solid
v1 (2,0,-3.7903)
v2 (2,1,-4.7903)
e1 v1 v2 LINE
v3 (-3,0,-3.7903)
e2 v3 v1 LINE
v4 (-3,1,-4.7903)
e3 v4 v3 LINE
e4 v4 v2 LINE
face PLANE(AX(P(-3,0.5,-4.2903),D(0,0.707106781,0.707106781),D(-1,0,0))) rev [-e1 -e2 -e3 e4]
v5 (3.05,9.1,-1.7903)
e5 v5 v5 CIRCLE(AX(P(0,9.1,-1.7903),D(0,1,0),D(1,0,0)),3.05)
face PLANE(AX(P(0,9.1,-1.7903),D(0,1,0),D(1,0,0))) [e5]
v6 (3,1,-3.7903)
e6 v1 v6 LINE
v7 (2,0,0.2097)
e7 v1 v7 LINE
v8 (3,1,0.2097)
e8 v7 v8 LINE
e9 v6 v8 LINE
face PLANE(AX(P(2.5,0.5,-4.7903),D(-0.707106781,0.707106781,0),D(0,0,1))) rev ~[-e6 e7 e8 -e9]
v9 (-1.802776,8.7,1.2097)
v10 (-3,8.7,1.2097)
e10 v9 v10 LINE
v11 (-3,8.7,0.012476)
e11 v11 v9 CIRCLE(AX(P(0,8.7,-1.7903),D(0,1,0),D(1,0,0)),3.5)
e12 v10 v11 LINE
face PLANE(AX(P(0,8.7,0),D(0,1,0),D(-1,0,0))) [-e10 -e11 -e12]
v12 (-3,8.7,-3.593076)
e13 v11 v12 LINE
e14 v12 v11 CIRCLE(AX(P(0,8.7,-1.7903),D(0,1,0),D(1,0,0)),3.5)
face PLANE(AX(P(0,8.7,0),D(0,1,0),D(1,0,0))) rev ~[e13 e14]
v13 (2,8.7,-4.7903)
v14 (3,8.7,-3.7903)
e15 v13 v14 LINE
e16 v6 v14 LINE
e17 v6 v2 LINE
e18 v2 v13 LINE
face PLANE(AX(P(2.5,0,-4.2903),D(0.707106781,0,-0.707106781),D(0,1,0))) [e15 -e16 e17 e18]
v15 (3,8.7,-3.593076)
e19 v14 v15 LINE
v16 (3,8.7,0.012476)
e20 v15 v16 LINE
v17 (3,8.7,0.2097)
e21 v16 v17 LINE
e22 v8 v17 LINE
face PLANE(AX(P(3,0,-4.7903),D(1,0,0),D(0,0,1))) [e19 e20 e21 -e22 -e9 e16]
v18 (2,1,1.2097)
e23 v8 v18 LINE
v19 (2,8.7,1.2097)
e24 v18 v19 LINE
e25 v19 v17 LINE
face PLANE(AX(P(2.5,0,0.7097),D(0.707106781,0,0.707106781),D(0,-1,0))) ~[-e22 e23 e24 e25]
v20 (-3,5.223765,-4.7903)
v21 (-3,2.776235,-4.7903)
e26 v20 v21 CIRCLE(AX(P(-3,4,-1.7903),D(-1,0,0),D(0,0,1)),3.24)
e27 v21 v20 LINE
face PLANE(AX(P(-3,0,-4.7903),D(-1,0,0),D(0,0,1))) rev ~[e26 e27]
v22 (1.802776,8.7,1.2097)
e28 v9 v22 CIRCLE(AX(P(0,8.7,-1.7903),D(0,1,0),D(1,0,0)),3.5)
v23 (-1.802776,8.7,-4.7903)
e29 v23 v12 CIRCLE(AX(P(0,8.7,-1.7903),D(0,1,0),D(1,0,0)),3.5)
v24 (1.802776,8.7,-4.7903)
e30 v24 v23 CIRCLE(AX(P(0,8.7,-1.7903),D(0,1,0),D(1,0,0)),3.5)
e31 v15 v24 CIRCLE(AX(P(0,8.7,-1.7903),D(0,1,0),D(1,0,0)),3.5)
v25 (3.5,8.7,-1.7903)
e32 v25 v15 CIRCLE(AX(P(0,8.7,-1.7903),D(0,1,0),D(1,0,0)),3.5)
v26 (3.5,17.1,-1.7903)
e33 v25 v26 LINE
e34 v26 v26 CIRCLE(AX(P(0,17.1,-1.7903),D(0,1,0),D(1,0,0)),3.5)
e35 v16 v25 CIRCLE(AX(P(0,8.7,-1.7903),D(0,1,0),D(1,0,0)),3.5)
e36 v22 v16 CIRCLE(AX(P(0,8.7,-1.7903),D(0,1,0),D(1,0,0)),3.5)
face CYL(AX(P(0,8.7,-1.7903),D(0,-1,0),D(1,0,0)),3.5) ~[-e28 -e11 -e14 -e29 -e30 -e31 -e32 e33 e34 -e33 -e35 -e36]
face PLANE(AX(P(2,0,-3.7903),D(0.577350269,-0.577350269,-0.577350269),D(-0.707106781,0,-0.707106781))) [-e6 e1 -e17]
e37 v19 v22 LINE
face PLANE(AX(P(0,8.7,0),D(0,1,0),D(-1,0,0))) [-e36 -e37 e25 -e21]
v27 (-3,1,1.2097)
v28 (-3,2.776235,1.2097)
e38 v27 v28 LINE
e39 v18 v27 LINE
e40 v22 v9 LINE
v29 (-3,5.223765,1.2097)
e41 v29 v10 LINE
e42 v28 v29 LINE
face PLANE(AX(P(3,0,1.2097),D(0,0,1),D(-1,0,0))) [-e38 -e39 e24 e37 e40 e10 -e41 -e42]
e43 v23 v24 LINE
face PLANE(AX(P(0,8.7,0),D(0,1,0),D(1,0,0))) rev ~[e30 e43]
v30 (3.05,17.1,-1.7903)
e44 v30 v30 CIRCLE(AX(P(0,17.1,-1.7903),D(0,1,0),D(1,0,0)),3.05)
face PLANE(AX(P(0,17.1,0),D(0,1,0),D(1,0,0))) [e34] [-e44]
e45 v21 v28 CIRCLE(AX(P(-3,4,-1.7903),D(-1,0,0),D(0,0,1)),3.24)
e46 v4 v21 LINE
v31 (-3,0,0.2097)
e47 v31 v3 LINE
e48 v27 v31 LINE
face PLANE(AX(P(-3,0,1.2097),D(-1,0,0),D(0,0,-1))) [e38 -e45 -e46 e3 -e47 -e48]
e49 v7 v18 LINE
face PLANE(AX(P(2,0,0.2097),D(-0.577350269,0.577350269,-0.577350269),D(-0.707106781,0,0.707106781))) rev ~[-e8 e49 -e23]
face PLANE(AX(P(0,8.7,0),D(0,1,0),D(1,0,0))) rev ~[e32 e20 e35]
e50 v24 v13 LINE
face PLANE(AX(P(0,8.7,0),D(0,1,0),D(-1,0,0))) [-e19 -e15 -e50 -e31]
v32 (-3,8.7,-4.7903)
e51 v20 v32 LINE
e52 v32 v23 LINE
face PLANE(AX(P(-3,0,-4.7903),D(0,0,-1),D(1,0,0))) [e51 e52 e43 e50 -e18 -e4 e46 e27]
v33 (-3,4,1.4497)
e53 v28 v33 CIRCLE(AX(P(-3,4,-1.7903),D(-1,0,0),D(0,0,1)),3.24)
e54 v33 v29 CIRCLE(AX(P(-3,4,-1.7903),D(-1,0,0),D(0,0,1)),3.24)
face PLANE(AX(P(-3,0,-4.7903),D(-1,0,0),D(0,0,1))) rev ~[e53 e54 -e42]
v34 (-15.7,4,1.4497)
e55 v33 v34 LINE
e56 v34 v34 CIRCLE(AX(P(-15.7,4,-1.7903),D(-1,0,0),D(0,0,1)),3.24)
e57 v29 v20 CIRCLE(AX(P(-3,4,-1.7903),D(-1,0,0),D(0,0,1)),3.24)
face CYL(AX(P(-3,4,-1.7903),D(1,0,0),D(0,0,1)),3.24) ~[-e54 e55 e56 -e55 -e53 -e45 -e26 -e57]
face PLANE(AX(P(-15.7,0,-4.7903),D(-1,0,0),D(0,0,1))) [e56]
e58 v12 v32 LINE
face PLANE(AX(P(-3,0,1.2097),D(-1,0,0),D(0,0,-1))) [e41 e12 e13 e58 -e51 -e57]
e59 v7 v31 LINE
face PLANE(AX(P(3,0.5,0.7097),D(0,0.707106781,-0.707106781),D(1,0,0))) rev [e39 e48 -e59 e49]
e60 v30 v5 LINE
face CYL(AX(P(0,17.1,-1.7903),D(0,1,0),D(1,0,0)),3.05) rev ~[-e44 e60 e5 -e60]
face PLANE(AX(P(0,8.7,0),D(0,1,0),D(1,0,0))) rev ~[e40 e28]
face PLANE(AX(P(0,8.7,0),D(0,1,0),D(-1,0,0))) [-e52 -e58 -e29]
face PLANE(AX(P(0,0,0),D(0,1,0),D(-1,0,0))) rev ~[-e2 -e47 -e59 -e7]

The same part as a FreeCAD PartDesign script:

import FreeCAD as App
import Part
import Sketcher


def edges_at(feature, points):
    """Names of the edges that pass closest to the given points."""
    edges = feature.Shape.Edges
    near = lambda p: min(range(len(edges)), key=lambda i: edges[i].distToShape(Part.Vertex(*p))[0])
    return sorted({f"Edge{near(p) + 1}" for p in points})

doc = App.newDocument("Part")
body = doc.addObject("PartDesign::Body", "Body")

sketch1 = body.newObject("Sketcher::SketchObject", "Sketch")
sketch1.AttachmentSupport = (doc.getObject("XZ_Plane"), [""])
sketch1.MapMode = "FlatFace"
sketch1.addGeometry(Part.LineSegment(App.Vector(-3, 1, 0), App.Vector(3, 1, 0)), False)
sketch1.addGeometry(Part.LineSegment(App.Vector(3, 1, 0), App.Vector(3, -5, 0)), False)
sketch1.addGeometry(Part.LineSegment(App.Vector(3, -5, 0), App.Vector(-3, -5, 0)), False)
sketch1.addGeometry(Part.LineSegment(App.Vector(-3, -5, 0), App.Vector(-3, 1, 0)), False)
sketch1.addConstraint(Sketcher.Constraint("Coincident", 0, 2, 1, 1))
sketch1.addConstraint(Sketcher.Constraint("Coincident", 1, 2, 2, 1))
sketch1.addConstraint(Sketcher.Constraint("Coincident", 2, 2, 3, 1))
sketch1.addConstraint(Sketcher.Constraint("Coincident", 3, 2, 0, 1))
sketch1.addConstraint(Sketcher.Constraint("Horizontal", 0))
sketch1.addConstraint(Sketcher.Constraint("Vertical", 1))
sketch1.addConstraint(Sketcher.Constraint("Horizontal", 2))
sketch1.addConstraint(Sketcher.Constraint("Vertical", 3))
sketch1.addConstraint(Sketcher.Constraint("Equal", 2, 1))
sketch1.addConstraint(Sketcher.Constraint("DistanceX", 0, 1, 0, 2, 6.0))
sketch1.addConstraint(Sketcher.Constraint("DistanceX", -1, 1, 0, 2, 3.0))
sketch1.addConstraint(Sketcher.Constraint("DistanceY", -1, 1, 0, 2, 1.2097))
pad1 = body.newObject("PartDesign::Pad", "Pad")
pad1.Profile = sketch1
pad1.Length = 8.7
pad1.Reversed = True

sketch2 = body.newObject("Sketcher::SketchObject", "Sketch001")
sketch2.AttachmentSupport = (doc.getObject("XZ_Plane"), [""])
sketch2.MapMode = "FlatFace"
sketch2.AttachmentOffset = App.Placement(App.Vector(0, 0, -8.7), App.Rotation())
sketch2.addGeometry(Part.Circle(App.Vector(0, -1.8, 0), App.Vector(0, 0, 1), 3.5), False)
sketch2.addConstraint(Sketcher.Constraint("PointOnObject", 0, 3, -2))
sketch2.addConstraint(Sketcher.Constraint("Diameter", 0, 7.0))
sketch2.addConstraint(Sketcher.Constraint("DistanceY", 0, 3, -1, 1, 1.7903))
pad2 = body.newObject("PartDesign::Pad", "Pad001")
pad2.Profile = sketch2
pad2.Length = 8.4
pad2.Reversed = True

sketch3 = body.newObject("Sketcher::SketchObject", "Sketch002")
sketch3.AttachmentSupport = (doc.getObject("XZ_Plane"), [""])
sketch3.MapMode = "FlatFace"
sketch3.AttachmentOffset = App.Placement(App.Vector(0, 0, -17.1), App.Rotation())
sketch3.addGeometry(Part.Circle(App.Vector(0, -1.8, 0), App.Vector(0, 0, 1), 3), False)
sketch3.addConstraint(Sketcher.Constraint("PointOnObject", 0, 3, -2))
sketch3.addConstraint(Sketcher.Constraint("Diameter", 0, 6.1))
sketch3.addConstraint(Sketcher.Constraint("DistanceY", 0, 3, -1, 1, 1.7903))
pocket1 = body.newObject("PartDesign::Pocket", "Pocket")
pocket1.Profile = sketch3
pocket1.Length = 8
pocket1.Reversed = True

sketch4 = body.newObject("Sketcher::SketchObject", "Sketch003")
sketch4.AttachmentSupport = (doc.getObject("YZ_Plane"), [""])
sketch4.MapMode = "FlatFace"
sketch4.AttachmentOffset = App.Placement(App.Vector(0, 0, -3), App.Rotation())
sketch4.addGeometry(Part.Circle(App.Vector(4, -1.8, 0), App.Vector(0, 0, 1), 3.2), False)
sketch4.addConstraint(Sketcher.Constraint("Diameter", 0, 6.48))
sketch4.addConstraint(Sketcher.Constraint("DistanceX", -1, 1, 0, 3, 4.0))
sketch4.addConstraint(Sketcher.Constraint("DistanceY", 0, 3, -1, 1, 1.7903))
pad3 = body.newObject("PartDesign::Pad", "Pad002")
pad3.Profile = sketch4
pad3.Length = 12.7
pad3.Reversed = True
doc.recompute()

chamfer = body.newObject("PartDesign::Chamfer", "Chamfer")
chamfer.Base = (pad3, edges_at(pad3, [
    (3, 4.35, 1.21),
    (3, 4.35, -4.79),
    (3, 0, -1.79),
    (0, 0, 1.21),
    (0, 0, -4.79),
]))
chamfer.Size = 1

doc.recompute()
